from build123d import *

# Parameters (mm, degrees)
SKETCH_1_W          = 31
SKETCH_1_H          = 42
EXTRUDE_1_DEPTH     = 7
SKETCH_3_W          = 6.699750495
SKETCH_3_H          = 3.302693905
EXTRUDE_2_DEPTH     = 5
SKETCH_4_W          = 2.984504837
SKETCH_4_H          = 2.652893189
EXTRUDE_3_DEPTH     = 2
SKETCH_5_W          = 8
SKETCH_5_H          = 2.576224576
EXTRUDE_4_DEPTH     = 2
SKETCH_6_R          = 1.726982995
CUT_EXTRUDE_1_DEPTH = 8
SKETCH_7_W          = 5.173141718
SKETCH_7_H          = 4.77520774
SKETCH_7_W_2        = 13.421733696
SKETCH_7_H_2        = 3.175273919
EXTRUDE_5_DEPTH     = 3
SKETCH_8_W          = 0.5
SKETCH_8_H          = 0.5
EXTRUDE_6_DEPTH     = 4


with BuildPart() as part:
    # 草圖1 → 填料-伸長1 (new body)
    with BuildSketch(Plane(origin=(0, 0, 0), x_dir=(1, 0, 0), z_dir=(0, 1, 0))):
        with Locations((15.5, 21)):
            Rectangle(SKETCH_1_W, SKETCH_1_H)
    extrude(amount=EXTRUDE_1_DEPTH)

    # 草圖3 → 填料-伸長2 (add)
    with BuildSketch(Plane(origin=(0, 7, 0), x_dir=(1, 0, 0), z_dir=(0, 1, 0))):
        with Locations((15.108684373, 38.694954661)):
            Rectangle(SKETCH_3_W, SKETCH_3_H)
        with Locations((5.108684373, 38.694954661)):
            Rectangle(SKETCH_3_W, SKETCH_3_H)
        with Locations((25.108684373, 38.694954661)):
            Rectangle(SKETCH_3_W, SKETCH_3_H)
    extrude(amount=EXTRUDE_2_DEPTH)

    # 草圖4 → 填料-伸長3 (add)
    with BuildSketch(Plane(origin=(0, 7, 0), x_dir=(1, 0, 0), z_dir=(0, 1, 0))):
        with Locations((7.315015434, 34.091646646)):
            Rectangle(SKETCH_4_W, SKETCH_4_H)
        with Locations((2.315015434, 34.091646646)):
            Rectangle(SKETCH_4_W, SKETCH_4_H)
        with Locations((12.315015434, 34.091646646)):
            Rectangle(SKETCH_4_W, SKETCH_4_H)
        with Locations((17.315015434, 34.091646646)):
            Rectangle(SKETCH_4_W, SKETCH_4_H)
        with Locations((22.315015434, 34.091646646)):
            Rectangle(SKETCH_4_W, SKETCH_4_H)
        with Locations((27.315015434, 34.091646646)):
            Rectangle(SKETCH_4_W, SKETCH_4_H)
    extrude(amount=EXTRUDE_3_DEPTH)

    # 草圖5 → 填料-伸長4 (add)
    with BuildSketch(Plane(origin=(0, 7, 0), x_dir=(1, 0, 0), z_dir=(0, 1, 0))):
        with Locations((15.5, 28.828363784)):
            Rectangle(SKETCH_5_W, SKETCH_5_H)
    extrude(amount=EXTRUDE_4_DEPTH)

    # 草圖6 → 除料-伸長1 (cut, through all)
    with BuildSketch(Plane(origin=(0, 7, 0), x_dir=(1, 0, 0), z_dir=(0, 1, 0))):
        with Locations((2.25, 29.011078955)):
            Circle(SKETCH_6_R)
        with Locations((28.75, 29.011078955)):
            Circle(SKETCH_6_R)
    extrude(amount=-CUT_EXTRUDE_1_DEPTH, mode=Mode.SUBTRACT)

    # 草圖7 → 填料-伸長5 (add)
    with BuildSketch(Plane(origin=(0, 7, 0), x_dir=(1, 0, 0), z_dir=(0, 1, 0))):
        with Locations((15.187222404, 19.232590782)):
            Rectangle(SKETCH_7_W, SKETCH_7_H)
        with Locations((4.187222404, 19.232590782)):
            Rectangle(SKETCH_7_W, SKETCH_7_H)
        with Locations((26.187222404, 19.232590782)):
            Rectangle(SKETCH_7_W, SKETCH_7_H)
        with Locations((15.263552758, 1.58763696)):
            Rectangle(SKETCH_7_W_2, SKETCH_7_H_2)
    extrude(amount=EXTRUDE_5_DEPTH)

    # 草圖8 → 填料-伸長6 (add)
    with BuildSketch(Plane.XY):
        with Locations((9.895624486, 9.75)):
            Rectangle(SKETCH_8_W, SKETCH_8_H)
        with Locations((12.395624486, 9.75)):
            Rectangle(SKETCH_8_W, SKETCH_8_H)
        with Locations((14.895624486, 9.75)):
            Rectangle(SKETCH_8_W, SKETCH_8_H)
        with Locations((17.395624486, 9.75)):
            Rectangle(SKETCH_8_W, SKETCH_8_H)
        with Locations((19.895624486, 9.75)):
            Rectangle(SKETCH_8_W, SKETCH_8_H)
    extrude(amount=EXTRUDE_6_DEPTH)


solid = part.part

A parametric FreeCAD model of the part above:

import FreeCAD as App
import Part
import Sketcher

V = App.Vector


def add_polygon(sketch, points):
    """Adds a closed chain of lines whose ends are joined by coincident constraints."""
    first, n = sketch.GeometryCount, len(points)
    for a, b in zip(points, points[1:] + points[:1]):
        sketch.addGeometry(Part.LineSegment(App.Vector(*a, 0), App.Vector(*b, 0)), False)
    for i in range(n):
        sketch.addConstraint(Sketcher.Constraint("Coincident", first + i, 2, first + (i + 1) % n, 1))

doc = App.newDocument("Part")
params = doc.addObject("Spreadsheet::Sheet", "Params")
for row, (alias, value) in enumerate([
    ("sketch1_width", "31 mm"),
    ("sketch1_height", "42 mm"),
    ("pad1_length", "7 mm"),
    ("pad2_length", "5 mm"),
    ("pad3_length", "2 mm"),
    ("sketch4_width", "8 mm"),
    ("pad4_length", "2 mm"),
    ("pad5_length", "3 mm"),
    ("sketch7_width", "0.5 mm"),
    ("pad6_length", "4 mm"),
], start=1):
    params.set(f"A{row}", alias)
    params.set(f"B{row}", "=" + value)
    params.setAlias(f"B{row}", alias)

body = doc.addObject("PartDesign::Body", "Body")

# Sketch on XZ plane
sketch1 = doc.addObject("Sketcher::SketchObject", "Sketch")
body.addObject(sketch1)
sketch1.AttachmentSupport = (doc.XZ_Plane, [""])
sketch1.MapMode = "FlatFace"
add_polygon(sketch1, [(0, -42), (0, 0), (31, 0), (31, -42)])  # lines 0-3
sketch1.addConstraint(Sketcher.Constraint("Vertical", 0))
sketch1.addConstraint(Sketcher.Constraint("Horizontal", 1))
sketch1.addConstraint(Sketcher.Constraint("Vertical", 2))
sketch1.addConstraint(Sketcher.Constraint("Horizontal", 3))
sketch1.addConstraint(Sketcher.Constraint("Coincident", 0, 2, -1, 1))
sketch1.addConstraint(Sketcher.Constraint("DistanceX", 1, 1, 1, 2, 31.0))
sketch1.addConstraint(Sketcher.Constraint("DistanceY", 0, 1, 0, 2, 42.0))
sketch1.setExpression("Constraints[9]", "Params.sketch1_width")
sketch1.setExpression("Constraints[10]", "Params.sketch1_height")
pad1 = doc.addObject("PartDesign::Pad", "Pad")
body.addObject(pad1)
pad1.Profile = sketch1
pad1.setExpression("Length", "Params.pad1_length")
pad1.Reversed = True

# Sketch on XZ plane
sketch2 = doc.addObject("Sketcher::SketchObject", "Sketch001")
body.addObject(sketch2)
sketch2.AttachmentSupport = (doc.XZ_Plane, [""])
sketch2.MapMode = "FlatFace"
sketch2.AttachmentOffset = App.Placement(V(0, 0, -7), App.Rotation())
add_polygon(sketch2, [(11.758809, -40.346302), (11.758809, -37.043608), (18.45856, -37.043608), (18.45856, -40.346302)])  # lines 0-3
add_polygon(sketch2, [(1.758809, -40.346302), (1.758809, -37.043608), (8.45856, -37.043608), (8.45856, -40.346302)])  # lines 4-7
add_polygon(sketch2, [(21.758809, -40.346302), (21.758809, -37.043608), (28.45856, -37.043608), (28.45856, -40.346302)])  # lines 8-11
sketch2.addConstraint(Sketcher.Constraint("Vertical", 0))
sketch2.addConstraint(Sketcher.Constraint("Horizontal", 1))
sketch2.addConstraint(Sketcher.Constraint("Vertical", 2))
sketch2.addConstraint(Sketcher.Constraint("Horizontal", 3))
sketch2.addConstraint(Sketcher.Constraint("Vertical", 4))
sketch2.addConstraint(Sketcher.Constraint("Horizontal", 5))
sketch2.addConstraint(Sketcher.Constraint("Vertical", 6))
sketch2.addConstraint(Sketcher.Constraint("Horizontal", 7))
sketch2.addConstraint(Sketcher.Constraint("Vertical", 8))
sketch2.addConstraint(Sketcher.Constraint("Horizontal", 9))
sketch2.addConstraint(Sketcher.Constraint("Vertical", 10))
sketch2.addConstraint(Sketcher.Constraint("Horizontal", 11))
sketch2.addConstraint(Sketcher.Constraint("Horizontal", 1, 2, 4, 2))
sketch2.addConstraint(Sketcher.Constraint("Horizontal", 3, 2, 6, 2))
sketch2.addConstraint(Sketcher.Constraint("Horizontal", 5, 2, 8, 2))
sketch2.addConstraint(Sketcher.Constraint("Horizontal", 7, 2, 10, 2))
sketch2.addConstraint(Sketcher.Constraint("Equal", 3, 5))
sketch2.addConstraint(Sketcher.Constraint("Equal", 7, 9))
sketch2.addConstraint(Sketcher.Constraint("DistanceX", 4, 2, 0, 2, 10.0))
sketch2.addConstraint(Sketcher.Constraint("DistanceX", 0, 2, 8, 2, 10.0))
sketch2.addConstraint(Sketcher.Constraint("DistanceX", 1, 1, 1, 2, 6.69975))
sketch2.addConstraint(Sketcher.Constraint("DistanceY", 2, 2, -1, 1, 40.346302))
sketch2.addConstraint(Sketcher.Constraint("DistanceY", 0, 1, 0, 2, 3.302694))
sketch2.addConstraint(Sketcher.Constraint("DistanceX", -1, 1, 0, 2, 11.758809))
pad2 = doc.addObject("PartDesign::Pad", "Pad001")
body.addObject(pad2)
pad2.Profile = sketch2
pad2.setExpression("Length", "Params.pad2_length")
pad2.Reversed = True

# Sketch on XZ plane
sketch3 = doc.addObject("Sketcher::SketchObject", "Sketch002")
body.addObject(sketch3)
sketch3.AttachmentSupport = (doc.XZ_Plane, [""])
sketch3.MapMode = "FlatFace"
sketch3.AttachmentOffset = App.Placement(V(0, 0, -7), App.Rotation())
add_polygon(sketch3, [(5.822763, -35.418093), (5.822763, -32.7652), (8.807268, -32.7652), (8.807268, -35.418093)])  # lines 0-3
add_polygon(sketch3, [(0.822763, -35.418093), (0.822763, -32.7652), (3.807268, -32.7652), (3.807268, -35.418093)])  # lines 4-7
add_polygon(sketch3, [(10.822763, -35.418093), (10.822763, -32.7652), (13.807268, -32.7652), (13.807268, -35.418093)])  # lines 8-11
add_polygon(sketch3, [(15.822763, -35.418093), (15.822763, -32.7652), (18.807268, -32.7652), (18.807268, -35.418093)])  # lines 12-15
add_polygon(sketch3, [(20.822763, -35.418093), (20.822763, -32.7652), (23.807268, -32.7652), (23.807268, -35.418093)])  # lines 16-19
add_polygon(sketch3, [(25.822763, -35.418093), (25.822763, -32.7652), (28.807268, -32.7652), (28.807268, -35.418093)])  # lines 20-23
sketch3.addConstraint(Sketcher.Constraint("Vertical", 0))
sketch3.addConstraint(Sketcher.Constraint("Horizontal", 1))
sketch3.addConstraint(Sketcher.Constraint("Vertical", 2))
sketch3.addConstraint(Sketcher.Constraint("Horizontal", 3))
sketch3.addConstraint(Sketcher.Constraint("Vertical", 4))
sketch3.addConstraint(Sketcher.Constraint("Horizontal", 5))
sketch3.addConstraint(Sketcher.Constraint("Vertical", 6))
sketch3.addConstraint(Sketcher.Constraint("Horizontal", 7))
sketch3.addConstraint(Sketcher.Constraint("Vertical", 8))
sketch3.addConstraint(Sketcher.Constraint("Horizontal", 9))
sketch3.addConstraint(Sketcher.Constraint("Vertical", 10))
sketch3.addConstraint(Sketcher.Constraint("Horizontal", 11))
sketch3.addConstraint(Sketcher.Constraint("Vertical", 12))
sketch3.addConstraint(Sketcher.Constraint("Horizontal", 13))
sketch3.addConstraint(Sketcher.Constraint("Vertical", 14))
sketch3.addConstraint(Sketcher.Constraint("Horizontal", 15))
sketch3.addConstraint(Sketcher.Constraint("Vertical", 16))
sketch3.addConstraint(Sketcher.Constraint("Horizontal", 17))
sketch3.addConstraint(Sketcher.Constraint("Vertical", 18))
sketch3.addConstraint(Sketcher.Constraint("Horizontal", 19))
sketch3.addConstraint(Sketcher.Constraint("Vertical", 20))
sketch3.addConstraint(Sketcher.Constraint("Horizontal", 21))
sketch3.addConstraint(Sketcher.Constraint("Vertical", 22))
sketch3.addConstraint(Sketcher.Constraint("Horizontal", 23))
sketch3.addConstraint(Sketcher.Constraint("Horizontal", 1, 2, 4, 2))
sketch3.addConstraint(Sketcher.Constraint("Horizontal", 3, 2, 6, 2))
sketch3.addConstraint(Sketcher.Constraint("Horizontal", 5, 2, 8, 2))
sketch3.addConstraint(Sketcher.Constraint("Horizontal", 7, 2, 10, 2))
sketch3.addConstraint(Sketcher.Constraint("Horizontal", 9, 2, 12, 2))
sketch3.addConstraint(Sketcher.Constraint("Horizontal", 11, 2, 14, 2))
sketch3.addConstraint(Sketcher.Constraint("Horizontal", 13, 2, 16, 2))
sketch3.addConstraint(Sketcher.Constraint("Horizontal", 15, 2, 18, 2))
sketch3.addConstraint(Sketcher.Constraint("Horizontal", 17, 2, 20, 2))
sketch3.addConstraint(Sketcher.Constraint("Horizontal", 19, 2, 22, 2))
sketch3.addConstraint(Sketcher.Constraint("Equal", 3, 5))
sketch3.addConstraint(Sketcher.Constraint("Equal", 7, 9))
sketch3.addConstraint(Sketcher.Constraint("Equal", 11, 13))
sketch3.addConstraint(Sketcher.Constraint("Equal", 15, 17))
sketch3.addConstraint(Sketcher.Constraint("Equal", 19, 21))
sketch3.addConstraint(Sketcher.Constraint("DistanceX", 4, 2, 0, 2, 5.0))
sketch3.addConstraint(Sketcher.Constraint("DistanceX", 0, 2, 8, 2, 5.0))
sketch3.addConstraint(Sketcher.Constraint("DistanceX", 8, 2, 12, 2, 5.0))
sketch3.addConstraint(Sketcher.Constraint("DistanceX", 12, 2, 16, 2, 5.0))
sketch3.addConstraint(Sketcher.Constraint("DistanceX", 16, 2, 20, 2, 5.0))
sketch3.addConstraint(Sketcher.Constraint("DistanceY", 0, 2, -1, 1, 32.7652))
sketch3.addConstraint(Sketcher.Constraint("DistanceX", 1, 1, 1, 2, 2.984505))
sketch3.addConstraint(Sketcher.Constraint("DistanceY", 0, 1, 0, 2, 2.652893))
sketch3.addConstraint(Sketcher.Constraint("DistanceX", -1, 1, 0, 2, 5.822763))
pad3 = doc.addObject("PartDesign::Pad", "Pad002")
body.addObject(pad3)
pad3.Profile = sketch3
pad3.setExpression("Length", "Params.pad3_length")
pad3.Reversed = True

# Sketch on XZ plane
sketch4 = doc.addObject("Sketcher::SketchObject", "Sketch003")
body.addObject(sketch4)
sketch4.AttachmentSupport = (doc.XZ_Plane, [""])
sketch4.MapMode = "FlatFace"
sketch4.AttachmentOffset = App.Placement(V(0, 0, -7), App.Rotation())
add_polygon(sketch4, [(11.5, -30.116476), (11.5, -27.540251), (19.5, -27.540251), (19.5, -30.116476)])  # lines 0-3
sketch4.addConstraint(Sketcher.Constraint("Vertical", 0))
sketch4.addConstraint(Sketcher.Constraint("Horizontal", 1))
sketch4.addConstraint(Sketcher.Constraint("Vertical", 2))
sketch4.addConstraint(Sketcher.Constraint("Horizontal", 3))
sketch4.addConstraint(Sketcher.Constraint("DistanceX", 1, 1, 1, 2, 8.0))
sketch4.addConstraint(Sketcher.Constraint("DistanceX", -1, 1, 0, 2, 11.5))
sketch4.addConstraint(Sketcher.Constraint("DistanceY", 0, 1, 0, 2, 2.576225))
sketch4.addConstraint(Sketcher.Constraint("DistanceY", 0, 2, -1, 1, 27.540251))
sketch4.setExpression("Constraints[8]", "Params.sketch4_width")
pad4 = doc.addObject("PartDesign::Pad", "Pad003")
body.addObject(pad4)
pad4.Profile = sketch4
pad4.setExpression("Length", "Params.pad4_length")
pad4.Reversed = True

# Sketch on XZ plane
sketch5 = doc.addObject("Sketcher::SketchObject", "Sketch004")
body.addObject(sketch5)
sketch5.AttachmentSupport = (doc.XZ_Plane, [""])
sketch5.MapMode = "FlatFace"
sketch5.AttachmentOffset = App.Placement(V(0, 0, -7), App.Rotation())
sketch5.addGeometry(Part.Circle(V(2.25, -29.011079, 0), V(0, 0, 1), 1.726983), False)
sketch5.addGeometry(Part.Circle(V(28.75, -29.011079, 0), V(0, 0, 1), 1.726983), False)
sketch5.addConstraint(Sketcher.Constraint("Equal", 0, 1))
sketch5.addConstraint(Sketcher.Constraint("Horizontal", 0, 3, 1, 3))
sketch5.addConstraint(Sketcher.Constraint("DistanceX", 0, 3, 1, 3, 26.5))
sketch5.addConstraint(Sketcher.Constraint("DistanceX", -1, 1, 0, 3, 2.25))
sketch5.addConstraint(Sketcher.Constraint("Diameter", 0, 3.453966))
sketch5.addConstraint(Sketcher.Constraint("DistanceY", 0, 3, -1, 1, 29.011079))
pocket1 = doc.addObject("PartDesign::Pocket", "Pocket")
body.addObject(pocket1)
pocket1.Profile = sketch5
pocket1.Type = "ThroughAll"
pocket1.Reversed = True

# Sketch on XZ plane
sketch6 = doc.addObject("Sketcher::SketchObject", "Sketch005")
body.addObject(sketch6)
sketch6.AttachmentSupport = (doc.XZ_Plane, [""])
sketch6.MapMode = "FlatFace"
sketch6.AttachmentOffset = App.Placement(V(0, 0, -7), App.Rotation())
add_polygon(sketch6, [(12.600652, -21.620195), (12.600652, -16.844987), (17.773793, -16.844987), (17.773793, -21.620195)])  # lines 0-3
add_polygon(sketch6, [(1.600652, -21.620195), (1.600652, -16.844987), (6.773793, -16.844987), (6.773793, -21.620195)])  # lines 4-7
add_polygon(sketch6, [(23.600652, -21.620195), (23.600652, -16.844987), (28.773793, -16.844987), (28.773793, -21.620195)])  # lines 8-11
add_polygon(sketch6, [(8.552686, -3.175274), (8.552686, 0), (21.97442, 0), (21.97442, -3.175274)])  # lines 12-15
sketch6.addConstraint(Sketcher.Constraint("Vertical", 0))
sketch6.addConstraint(Sketcher.Constraint("Horizontal", 1))
sketch6.addConstraint(Sketcher.Constraint("Vertical", 2))
sketch6.addConstraint(Sketcher.Constraint("Horizontal", 3))
sketch6.addConstraint(Sketcher.Constraint("Vertical", 4))
sketch6.addConstraint(Sketcher.Constraint("Horizontal", 5))
sketch6.addConstraint(Sketcher.Constraint("Vertical", 6))
sketch6.addConstraint(Sketcher.Constraint("Horizontal", 7))
sketch6.addConstraint(Sketcher.Constraint("Vertical", 8))
sketch6.addConstraint(Sketcher.Constraint("Horizontal", 9))
sketch6.addConstraint(Sketcher.Constraint("Vertical", 10))
sketch6.addConstraint(Sketcher.Constraint("Horizontal", 11))
sketch6.addConstraint(Sketcher.Constraint("Vertical", 12))
sketch6.addConstraint(Sketcher.Constraint("Horizontal", 13))
sketch6.addConstraint(Sketcher.Constraint("Vertical", 14))
sketch6.addConstraint(Sketcher.Constraint("Horizontal", 15))
sketch6.addConstraint(Sketcher.Constraint("PointOnObject", 12, 2, -1))
sketch6.addConstraint(Sketcher.Constraint("Horizontal", 1, 2, 4, 2))
sketch6.addConstraint(Sketcher.Constraint("Horizontal", 3, 2, 6, 2))
sketch6.addConstraint(Sketcher.Constraint("Horizontal", 5, 2, 8, 2))
sketch6.addConstraint(Sketcher.Constraint("Horizontal", 7, 2, 10, 2))
sketch6.addConstraint(Sketcher.Constraint("Equal", 3, 5))
sketch6.addConstraint(Sketcher.Constraint("Equal", 7, 9))
sketch6.addConstraint(Sketcher.Constraint("DistanceX", 4, 2, 0, 2, 11.0))
sketch6.addConstraint(Sketcher.Constraint("DistanceX", 0, 2, 8, 2, 11.0))
sketch6.addConstraint(Sketcher.Constraint("DistanceX", 1, 1, 1, 2, 5.173142))
sketch6.addConstraint(Sketcher.Constraint("DistanceX", 13, 1, 13, 2, 13.421734))
sketch6.addConstraint(Sketcher.Constraint("DistanceY", 0, 1, 0, 2, 4.775208))
sketch6.addConstraint(Sketcher.Constraint("DistanceY", 12, 1, 12, 2, 3.175274))
sketch6.addConstraint(Sketcher.Constraint("DistanceX", -1, 1, 0, 2, 12.600652))
sketch6.addConstraint(Sketcher.Constraint("DistanceX", -1, 1, 13, 2, 21.97442))
sketch6.addConstraint(Sketcher.Constraint("DistanceY", 0, 2, -1, 1, 16.844987))
pad5 = doc.addObject("PartDesign::Pad", "Pad004")
body.addObject(pad5)
pad5.Profile = sketch6
pad5.setExpression("Length", "Params.pad5_length")
pad5.Reversed = True

# Sketch on XY plane
sketch7 = doc.addObject("Sketcher::SketchObject", "Sketch006")
body.addObject(sketch7)
sketch7.AttachmentSupport = (doc.XY_Plane, [""])
sketch7.MapMode = "FlatFace"
add_polygon(sketch7, [(9.645624, 10), (9.645624, 9.5), (10.145624, 9.5), (10.145624, 10)])  # lines 0-3
add_polygon(sketch7, [(12.145624, 10), (12.145624, 9.5), (12.645624, 9.5), (12.645624, 10)])  # lines 4-7
add_polygon(sketch7, [(14.645624, 10), (14.645624, 9.5), (15.145624, 9.5), (15.145624, 10)])  # lines 8-11
add_polygon(sketch7, [(17.145624, 10), (17.145624, 9.5), (17.645624, 9.5), (17.645624, 10)])  # lines 12-15
add_polygon(sketch7, [(19.645624, 10), (19.645624, 9.5), (20.145624, 9.5), (20.145624, 10)])  # lines 16-19
sketch7.addConstraint(Sketcher.Constraint("Vertical", 0))
sketch7.addConstraint(Sketcher.Constraint("Horizontal", 1))
sketch7.addConstraint(Sketcher.Constraint("Vertical", 2))
sketch7.addConstraint(Sketcher.Constraint("Horizontal", 3))
sketch7.addConstraint(Sketcher.Constraint("Vertical", 4))
sketch7.addConstraint(Sketcher.Constraint("Horizontal", 5))
sketch7.addConstraint(Sketcher.Constraint("Vertical", 6))
sketch7.addConstraint(Sketcher.Constraint("Horizontal", 7))
sketch7.addConstraint(Sketcher.Constraint("Vertical", 8))
sketch7.addConstraint(Sketcher.Constraint("Horizontal", 9))
sketch7.addConstraint(Sketcher.Constraint("Vertical", 10))
sketch7.addConstraint(Sketcher.Constraint("Horizontal", 11))
sketch7.addConstraint(Sketcher.Constraint("Vertical", 12))
sketch7.addConstraint(Sketcher.Constraint("Horizontal", 13))
sketch7.addConstraint(Sketcher.Constraint("Vertical", 14))
sketch7.addConstraint(Sketcher.Constraint("Horizontal", 15))
sketch7.addConstraint(Sketcher.Constraint("Vertical", 16))
sketch7.addConstraint(Sketcher.Constraint("Horizontal", 17))
sketch7.addConstraint(Sketcher.Constraint("Vertical", 18))
sketch7.addConstraint(Sketcher.Constraint("Horizontal", 19))
sketch7.addConstraint(Sketcher.Constraint("Horizontal", 1, 2, 4, 2))
sketch7.addConstraint(Sketcher.Constraint("Horizontal", 3, 2, 6, 2))
sketch7.addConstraint(Sketcher.Constraint("Horizontal", 5, 2, 8, 2))
sketch7.addConstraint(Sketcher.Constraint("Horizontal", 7, 2, 10, 2))
sketch7.addConstraint(Sketcher.Constraint("Horizontal", 9, 2, 12, 2))
sketch7.addConstraint(Sketcher.Constraint("Horizontal", 11, 2, 14, 2))
sketch7.addConstraint(Sketcher.Constraint("Horizontal", 13, 2, 16, 2))
sketch7.addConstraint(Sketcher.Constraint("Horizontal", 15, 2, 18, 2))
sketch7.addConstraint(Sketcher.Constraint("Equal", 3, 5))
sketch7.addConstraint(Sketcher.Constraint("Equal", 7, 9))
sketch7.addConstraint(Sketcher.Constraint("Equal", 11, 13))
sketch7.addConstraint(Sketcher.Constraint("Equal", 15, 17))
sketch7.addConstraint(Sketcher.Constraint("Equal", 19, 0))
sketch7.addConstraint(Sketcher.Constraint("DistanceX", 1, 1, 1, 2, 0.5))
sketch7.addConstraint(Sketcher.Constraint("DistanceY", -1, 1, 2, 2, 10.0))
sketch7.addConstraint(Sketcher.Constraint("DistanceX", 1, 2, 4, 2, 2.0))
sketch7.addConstraint(Sketcher.Constraint("DistanceX", 5, 2, 8, 2, 2.0))
sketch7.addConstraint(Sketcher.Constraint("DistanceX", 9, 2, 12, 2, 2.0))
sketch7.addConstraint(Sketcher.Constraint("DistanceX", 13, 2, 16, 2, 2.0))
sketch7.addConstraint(Sketcher.Constraint("DistanceX", -1, 1, 0, 2, 9.645624))
sketch7.setExpression("Constraints[53]", "Params.sketch7_width")
pad6 = doc.addObject("PartDesign::Pad", "Pad005")
body.addObject(pad6)
pad6.Profile = sketch7
pad6.setExpression("Length", "Params.pad6_length")

doc.recompute()
